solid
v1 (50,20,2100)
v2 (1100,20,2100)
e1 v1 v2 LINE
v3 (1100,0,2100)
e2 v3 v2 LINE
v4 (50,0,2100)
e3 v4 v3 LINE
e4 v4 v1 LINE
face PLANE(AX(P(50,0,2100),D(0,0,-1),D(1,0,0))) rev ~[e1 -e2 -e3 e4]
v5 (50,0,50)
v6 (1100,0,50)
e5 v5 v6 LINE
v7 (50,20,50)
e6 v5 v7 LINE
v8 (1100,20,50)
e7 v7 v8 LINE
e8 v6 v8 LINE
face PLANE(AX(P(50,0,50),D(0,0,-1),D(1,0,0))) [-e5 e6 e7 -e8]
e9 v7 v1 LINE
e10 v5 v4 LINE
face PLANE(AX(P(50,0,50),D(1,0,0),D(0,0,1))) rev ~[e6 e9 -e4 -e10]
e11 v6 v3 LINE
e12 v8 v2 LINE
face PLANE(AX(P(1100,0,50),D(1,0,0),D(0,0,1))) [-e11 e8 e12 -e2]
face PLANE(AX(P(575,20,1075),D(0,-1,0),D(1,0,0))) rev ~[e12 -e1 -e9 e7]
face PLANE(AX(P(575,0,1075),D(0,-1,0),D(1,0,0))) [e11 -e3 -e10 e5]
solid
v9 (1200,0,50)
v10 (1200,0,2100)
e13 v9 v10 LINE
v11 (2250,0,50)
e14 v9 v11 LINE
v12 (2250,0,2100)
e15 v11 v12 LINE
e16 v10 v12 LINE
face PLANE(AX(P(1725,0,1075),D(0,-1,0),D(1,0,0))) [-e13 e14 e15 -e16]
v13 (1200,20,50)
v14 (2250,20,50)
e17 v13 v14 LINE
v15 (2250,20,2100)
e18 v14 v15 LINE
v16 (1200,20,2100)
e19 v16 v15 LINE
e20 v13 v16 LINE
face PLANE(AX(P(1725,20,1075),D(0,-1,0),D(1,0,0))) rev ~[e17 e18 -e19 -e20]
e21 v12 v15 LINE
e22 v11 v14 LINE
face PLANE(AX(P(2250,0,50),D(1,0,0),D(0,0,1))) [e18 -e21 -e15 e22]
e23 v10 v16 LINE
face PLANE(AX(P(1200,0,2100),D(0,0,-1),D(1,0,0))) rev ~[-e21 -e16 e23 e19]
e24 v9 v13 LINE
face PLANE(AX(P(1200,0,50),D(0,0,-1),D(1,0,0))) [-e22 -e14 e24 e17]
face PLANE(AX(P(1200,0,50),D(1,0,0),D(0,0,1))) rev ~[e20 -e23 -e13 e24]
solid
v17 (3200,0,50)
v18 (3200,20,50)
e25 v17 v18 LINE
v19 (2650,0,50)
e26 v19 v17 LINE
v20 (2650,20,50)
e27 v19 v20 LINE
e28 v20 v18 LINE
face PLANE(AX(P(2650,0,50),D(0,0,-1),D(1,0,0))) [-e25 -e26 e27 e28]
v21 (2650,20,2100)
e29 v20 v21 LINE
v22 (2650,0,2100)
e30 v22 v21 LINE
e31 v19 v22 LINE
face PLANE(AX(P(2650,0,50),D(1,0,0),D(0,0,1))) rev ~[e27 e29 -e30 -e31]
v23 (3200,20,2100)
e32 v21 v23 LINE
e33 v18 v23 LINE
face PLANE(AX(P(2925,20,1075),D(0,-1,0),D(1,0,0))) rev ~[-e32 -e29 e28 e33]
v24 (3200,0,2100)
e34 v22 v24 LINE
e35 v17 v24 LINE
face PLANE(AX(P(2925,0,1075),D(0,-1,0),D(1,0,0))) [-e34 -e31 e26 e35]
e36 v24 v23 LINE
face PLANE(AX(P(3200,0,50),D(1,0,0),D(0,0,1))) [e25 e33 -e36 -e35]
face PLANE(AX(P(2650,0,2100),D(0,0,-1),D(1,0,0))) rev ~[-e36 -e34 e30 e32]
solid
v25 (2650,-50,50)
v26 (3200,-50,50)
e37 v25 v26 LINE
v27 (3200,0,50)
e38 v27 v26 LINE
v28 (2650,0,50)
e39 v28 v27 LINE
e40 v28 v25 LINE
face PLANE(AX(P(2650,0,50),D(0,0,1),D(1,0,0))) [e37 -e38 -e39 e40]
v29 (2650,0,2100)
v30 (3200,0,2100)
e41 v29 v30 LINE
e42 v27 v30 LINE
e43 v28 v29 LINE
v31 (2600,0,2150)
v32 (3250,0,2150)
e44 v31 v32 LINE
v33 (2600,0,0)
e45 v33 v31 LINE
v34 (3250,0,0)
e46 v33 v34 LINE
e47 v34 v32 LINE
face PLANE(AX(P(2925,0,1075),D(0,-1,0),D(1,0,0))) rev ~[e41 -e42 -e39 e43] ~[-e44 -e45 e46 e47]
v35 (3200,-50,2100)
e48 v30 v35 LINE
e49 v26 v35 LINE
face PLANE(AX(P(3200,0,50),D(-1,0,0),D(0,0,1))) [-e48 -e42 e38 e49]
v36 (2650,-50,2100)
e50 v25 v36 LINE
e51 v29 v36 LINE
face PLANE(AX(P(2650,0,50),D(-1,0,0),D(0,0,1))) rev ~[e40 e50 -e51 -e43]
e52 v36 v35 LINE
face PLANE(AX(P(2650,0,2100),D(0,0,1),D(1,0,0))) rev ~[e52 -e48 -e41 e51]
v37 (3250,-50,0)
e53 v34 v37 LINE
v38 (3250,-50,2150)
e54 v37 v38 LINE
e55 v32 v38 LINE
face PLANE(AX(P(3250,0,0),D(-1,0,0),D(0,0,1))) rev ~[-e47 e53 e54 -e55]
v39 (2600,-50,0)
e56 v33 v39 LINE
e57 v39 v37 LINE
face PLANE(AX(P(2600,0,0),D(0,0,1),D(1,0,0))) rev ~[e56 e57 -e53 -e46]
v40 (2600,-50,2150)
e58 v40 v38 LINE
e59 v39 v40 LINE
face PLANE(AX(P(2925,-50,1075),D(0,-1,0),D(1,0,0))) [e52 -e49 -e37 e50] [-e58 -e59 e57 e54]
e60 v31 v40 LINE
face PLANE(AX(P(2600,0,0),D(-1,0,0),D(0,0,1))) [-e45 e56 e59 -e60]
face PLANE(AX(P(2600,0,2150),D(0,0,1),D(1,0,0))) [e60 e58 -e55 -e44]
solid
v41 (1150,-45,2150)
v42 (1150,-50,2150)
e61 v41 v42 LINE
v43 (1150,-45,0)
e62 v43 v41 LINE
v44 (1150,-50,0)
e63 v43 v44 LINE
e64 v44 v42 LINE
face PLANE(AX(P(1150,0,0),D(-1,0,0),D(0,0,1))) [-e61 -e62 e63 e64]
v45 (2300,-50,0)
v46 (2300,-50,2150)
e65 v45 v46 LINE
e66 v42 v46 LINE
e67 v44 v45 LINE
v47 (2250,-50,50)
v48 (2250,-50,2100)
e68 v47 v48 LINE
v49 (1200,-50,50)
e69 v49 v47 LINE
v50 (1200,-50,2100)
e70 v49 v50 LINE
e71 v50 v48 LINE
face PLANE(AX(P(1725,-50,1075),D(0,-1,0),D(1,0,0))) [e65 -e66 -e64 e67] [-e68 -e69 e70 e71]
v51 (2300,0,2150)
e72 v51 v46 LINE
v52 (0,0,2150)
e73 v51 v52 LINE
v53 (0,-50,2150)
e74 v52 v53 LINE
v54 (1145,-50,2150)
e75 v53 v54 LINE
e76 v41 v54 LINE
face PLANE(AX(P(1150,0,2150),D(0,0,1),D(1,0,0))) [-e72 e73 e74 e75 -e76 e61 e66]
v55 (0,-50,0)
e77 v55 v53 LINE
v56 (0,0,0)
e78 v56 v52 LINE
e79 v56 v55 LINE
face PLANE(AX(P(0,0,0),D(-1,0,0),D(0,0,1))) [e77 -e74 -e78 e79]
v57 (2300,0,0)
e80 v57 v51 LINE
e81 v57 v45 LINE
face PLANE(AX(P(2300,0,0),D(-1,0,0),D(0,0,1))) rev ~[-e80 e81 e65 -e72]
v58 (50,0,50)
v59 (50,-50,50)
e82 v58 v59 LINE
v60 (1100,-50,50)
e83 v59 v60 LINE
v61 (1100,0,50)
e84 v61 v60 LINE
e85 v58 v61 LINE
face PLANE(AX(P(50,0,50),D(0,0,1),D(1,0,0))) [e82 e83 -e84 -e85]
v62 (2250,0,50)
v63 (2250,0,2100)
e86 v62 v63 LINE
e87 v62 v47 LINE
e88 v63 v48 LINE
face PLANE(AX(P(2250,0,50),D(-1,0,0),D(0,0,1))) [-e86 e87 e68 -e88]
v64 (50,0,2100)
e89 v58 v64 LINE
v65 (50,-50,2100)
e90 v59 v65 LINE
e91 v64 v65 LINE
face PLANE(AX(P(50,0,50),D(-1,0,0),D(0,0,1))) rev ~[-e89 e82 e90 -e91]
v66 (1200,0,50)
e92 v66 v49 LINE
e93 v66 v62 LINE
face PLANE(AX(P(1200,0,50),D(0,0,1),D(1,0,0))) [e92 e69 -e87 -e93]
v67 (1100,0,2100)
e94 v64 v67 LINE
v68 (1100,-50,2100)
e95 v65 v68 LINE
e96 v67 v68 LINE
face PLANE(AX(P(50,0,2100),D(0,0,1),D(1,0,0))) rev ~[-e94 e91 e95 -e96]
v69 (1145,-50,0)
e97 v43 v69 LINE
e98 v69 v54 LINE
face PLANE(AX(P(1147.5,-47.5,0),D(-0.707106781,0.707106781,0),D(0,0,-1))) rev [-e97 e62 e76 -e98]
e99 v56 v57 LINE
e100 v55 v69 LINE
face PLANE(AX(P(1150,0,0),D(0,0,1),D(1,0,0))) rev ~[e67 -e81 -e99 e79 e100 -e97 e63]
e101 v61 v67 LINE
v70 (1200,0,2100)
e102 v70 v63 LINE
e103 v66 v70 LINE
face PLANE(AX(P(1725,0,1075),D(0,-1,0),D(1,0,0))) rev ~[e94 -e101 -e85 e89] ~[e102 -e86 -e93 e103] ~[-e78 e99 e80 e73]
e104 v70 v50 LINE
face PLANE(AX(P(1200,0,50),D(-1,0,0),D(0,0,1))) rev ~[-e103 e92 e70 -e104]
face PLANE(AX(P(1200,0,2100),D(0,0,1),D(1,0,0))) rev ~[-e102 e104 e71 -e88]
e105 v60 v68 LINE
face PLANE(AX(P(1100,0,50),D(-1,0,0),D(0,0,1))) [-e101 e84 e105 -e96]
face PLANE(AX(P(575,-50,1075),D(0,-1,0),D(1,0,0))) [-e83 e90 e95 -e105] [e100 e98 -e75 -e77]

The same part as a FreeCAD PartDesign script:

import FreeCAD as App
import Part
import Sketcher

V = App.Vector
Q = App.Units.Quantity


def edges_at(feature, points):
    """Names of the edges that pass closest to the given points."""
    edges = feature.Shape.Edges
    near = lambda p: min(range(len(edges)), key=lambda i: edges[i].distToShape(Part.Vertex(*p))[0])
    return sorted({f"Edge{near(p) + 1}" for p in points})


def add_polygon(sketch, points):
    """Adds a closed chain of lines whose ends are joined by coincident constraints."""
    first, n = sketch.GeometryCount, len(points)
    for a, b in zip(points, points[1:] + points[:1]):
        sketch.addGeometry(Part.LineSegment(App.Vector(*a, 0), App.Vector(*b, 0)), False)
    for i in range(n):
        sketch.addConstraint(Sketcher.Constraint("Coincident", first + i, 2, first + (i + 1) % n, 1))

doc = App.newDocument("Part")
body = doc.addObject("PartDesign::Body", "Body")

# Sketch on XZ plane
sketch1 = body.newObject("Sketcher::SketchObject", "Sketch")
sketch1.AttachmentSupport = (doc.getObject("XZ_Plane"), [""])
sketch1.MapMode = "FlatFace"
add_polygon(sketch1, [(0, 2150), (0, 0), (1150, 0), (1150, 2150)])  # lines 0-3
add_polygon(sketch1, [(1100, 50), (50, 50), (50, 2100), (1100, 2100)])  # lines 4-7
sketch1.addConstraint([
    Sketcher.Constraint("Vertical", 0),
    Sketcher.Constraint("Horizontal", 1),
    Sketcher.Constraint("Vertical", 2),
    Sketcher.Constraint("Horizontal", 3),
    Sketcher.Constraint("Horizontal", 4),
    Sketcher.Constraint("Vertical", 5),
    Sketcher.Constraint("Horizontal", 6),
    Sketcher.Constraint("Vertical", 7),
    Sketcher.Constraint("Coincident", 0, 2, -1, 1),
    Sketcher.Constraint("DistanceX", 1, 1, 1, 2, Q("1150 mm")),
    Sketcher.Constraint("DistanceX", 4, 2, 4, 1, Q("1050 mm")),
    Sketcher.Constraint("DistanceY", 0, 2, 0, 1, Q("2150 mm")),
    Sketcher.Constraint("DistanceY", 5, 1, 5, 2, Q("2050 mm")),
    Sketcher.Constraint("DistanceX", -1, 1, 4, 2, Q("50 mm")),
    Sketcher.Constraint("DistanceY", -1, 1, 4, 2, Q("50 mm")),
])
pad1 = body.newObject("PartDesign::Pad", "Pad")
pad1.Profile = sketch1
pad1.Length = 50
doc.recompute()

chamfer = body.newObject("PartDesign::Chamfer", "Chamfer")
chamfer.Base = (pad1, edges_at(pad1, [(1150, -50, 1075)]))
chamfer.Size = 5

# Sketch on XZ plane
sketch2 = body.newObject("Sketcher::SketchObject", "Sketch001")
sketch2.AttachmentSupport = (doc.getObject("XZ_Plane"), [""])
sketch2.MapMode = "FlatFace"
add_polygon(sketch2, [(1150, 2150), (1150, 0), (2300, 0), (2300, 2150)])  # lines 0-3
add_polygon(sketch2, [(2250, 50), (1200, 50), (1200, 2100), (2250, 2100)])  # lines 4-7
sketch2.addConstraint([
    Sketcher.Constraint("Vertical", 0),
    Sketcher.Constraint("Horizontal", 1),
    Sketcher.Constraint("Vertical", 2),
    Sketcher.Constraint("Horizontal", 3),
    Sketcher.Constraint("Horizontal", 4),
    Sketcher.Constraint("Vertical", 5),
    Sketcher.Constraint("Horizontal", 6),
    Sketcher.Constraint("Vertical", 7),
    Sketcher.Constraint("PointOnObject", 0, 2, -1),
    Sketcher.Constraint("DistanceX", 1, 1, 1, 2, Q("1150 mm")),
    Sketcher.Constraint("DistanceX", 4, 2, 4, 1, Q("1050 mm")),
    Sketcher.Constraint("DistanceY", 0, 2, 0, 1, Q("2150 mm")),
    Sketcher.Constraint("DistanceY", 5, 1, 5, 2, Q("2050 mm")),
    Sketcher.Constraint("DistanceX", -1, 1, 0, 2, Q("1150 mm")),
    Sketcher.Constraint("DistanceX", -1, 1, 4, 2, Q("1200 mm")),
    Sketcher.Constraint("DistanceY", -1, 1, 4, 2, Q("50 mm")),
])
pad2 = body.newObject("PartDesign::Pad", "Pad001")
pad2.Profile = sketch2
pad2.Length = 50
body2 = doc.addObject("PartDesign::Body", "Body001")

# Sketch on XZ plane
sketch3 = body2.newObject("Sketcher::SketchObject", "Sketch002")
sketch3.AttachmentSupport = (doc.getObject("XZ_Plane001"), [""])
sketch3.MapMode = "FlatFace"
add_polygon(sketch3, [(2600, 2150), (2600, 0), (3250, 0), (3250, 2150)])  # lines 0-3
add_polygon(sketch3, [(3200, 50), (2650, 50), (2650, 2100), (3200, 2100)])  # lines 4-7
sketch3.addConstraint([
    Sketcher.Constraint("Vertical", 0),
    Sketcher.Constraint("Horizontal", 1),
    Sketcher.Constraint("Vertical", 2),
    Sketcher.Constraint("Horizontal", 3),
    Sketcher.Constraint("Horizontal", 4),
    Sketcher.Constraint("Vertical", 5),
    Sketcher.Constraint("Horizontal", 6),
    Sketcher.Constraint("Vertical", 7),
    Sketcher.Constraint("PointOnObject", 0, 2, -1),
    Sketcher.Constraint("DistanceX", 1, 1, 1, 2, Q("650 mm")),
    Sketcher.Constraint("DistanceX", 4, 2, 4, 1, Q("550 mm")),
    Sketcher.Constraint("DistanceY", 0, 2, 0, 1, Q("2150 mm")),
    Sketcher.Constraint("DistanceY", 5, 1, 5, 2, Q("2050 mm")),
    Sketcher.Constraint("DistanceX", -1, 1, 0, 2, Q("2600 mm")),
    Sketcher.Constraint("DistanceX", -1, 1, 4, 2, Q("2650 mm")),
    Sketcher.Constraint("DistanceY", -1, 1, 4, 2, Q("50 mm")),
])
pad3 = body2.newObject("PartDesign::Pad", "Pad002")
pad3.Profile = sketch3
pad3.Length = 50
body3 = doc.addObject("PartDesign::Body", "Body002")
body3.AllowCompound = True

# Sketch on XZ plane
sketch4 = body3.newObject("Sketcher::SketchObject", "Sketch003")
sketch4.AttachmentSupport = (doc.getObject("XZ_Plane002"), [""])
sketch4.MapMode = "FlatFace"
add_polygon(sketch4, [(50, 2100), (50, 50), (1100, 50), (1100, 2100)])  # lines 0-3
add_polygon(sketch4, [(1200, 2100), (1200, 50), (2250, 50), (2250, 2100)])  # lines 4-7
add_polygon(sketch4, [(2650, 2100), (2650, 50), (3200, 50), (3200, 2100)])  # lines 8-11
sketch4.addConstraint([
    Sketcher.Constraint("Vertical", 0),
    Sketcher.Constraint("Horizontal", 1),
    Sketcher.Constraint("Vertical", 2),
    Sketcher.Constraint("Horizontal", 3),
    Sketcher.Constraint("Vertical", 4),
    Sketcher.Constraint("Horizontal", 5),
    Sketcher.Constraint("Vertical", 6),
    Sketcher.Constraint("Horizontal", 7),
    Sketcher.Constraint("Vertical", 8),
    Sketcher.Constraint("Horizontal", 9),
    Sketcher.Constraint("Vertical", 10),
    Sketcher.Constraint("Horizontal", 11),
    Sketcher.Constraint("Horizontal", 1, 2, 4, 2),
    Sketcher.Constraint("Horizontal", 3, 2, 6, 2),
    Sketcher.Constraint("Horizontal", 5, 2, 8, 2),
    Sketcher.Constraint("Horizontal", 7, 2, 10, 2),
    Sketcher.Constraint("Equal", 3, 5),
    Sketcher.Constraint("DistanceX", 1, 1, 1, 2, Q("1050 mm")),
    Sketcher.Constraint("DistanceX", 9, 1, 9, 2, Q("550 mm")),
    Sketcher.Constraint("DistanceY", 0, 2, 0, 1, Q("2050 mm")),
    Sketcher.Constraint("DistanceX", -1, 1, 0, 2, Q("50 mm")),
    Sketcher.Constraint("DistanceY", -1, 1, 0, 2, Q("50 mm")),
    Sketcher.Constraint("DistanceX", -1, 1, 4, 2, Q("1200 mm")),
    Sketcher.Constraint("DistanceX", -1, 1, 8, 2, Q("2650 mm")),
])
pad4 = body3.newObject("PartDesign::Pad", "Pad003")
pad4.Profile = sketch4
pad4.Length = 20
pad4.Reversed = True

doc.recompute()
